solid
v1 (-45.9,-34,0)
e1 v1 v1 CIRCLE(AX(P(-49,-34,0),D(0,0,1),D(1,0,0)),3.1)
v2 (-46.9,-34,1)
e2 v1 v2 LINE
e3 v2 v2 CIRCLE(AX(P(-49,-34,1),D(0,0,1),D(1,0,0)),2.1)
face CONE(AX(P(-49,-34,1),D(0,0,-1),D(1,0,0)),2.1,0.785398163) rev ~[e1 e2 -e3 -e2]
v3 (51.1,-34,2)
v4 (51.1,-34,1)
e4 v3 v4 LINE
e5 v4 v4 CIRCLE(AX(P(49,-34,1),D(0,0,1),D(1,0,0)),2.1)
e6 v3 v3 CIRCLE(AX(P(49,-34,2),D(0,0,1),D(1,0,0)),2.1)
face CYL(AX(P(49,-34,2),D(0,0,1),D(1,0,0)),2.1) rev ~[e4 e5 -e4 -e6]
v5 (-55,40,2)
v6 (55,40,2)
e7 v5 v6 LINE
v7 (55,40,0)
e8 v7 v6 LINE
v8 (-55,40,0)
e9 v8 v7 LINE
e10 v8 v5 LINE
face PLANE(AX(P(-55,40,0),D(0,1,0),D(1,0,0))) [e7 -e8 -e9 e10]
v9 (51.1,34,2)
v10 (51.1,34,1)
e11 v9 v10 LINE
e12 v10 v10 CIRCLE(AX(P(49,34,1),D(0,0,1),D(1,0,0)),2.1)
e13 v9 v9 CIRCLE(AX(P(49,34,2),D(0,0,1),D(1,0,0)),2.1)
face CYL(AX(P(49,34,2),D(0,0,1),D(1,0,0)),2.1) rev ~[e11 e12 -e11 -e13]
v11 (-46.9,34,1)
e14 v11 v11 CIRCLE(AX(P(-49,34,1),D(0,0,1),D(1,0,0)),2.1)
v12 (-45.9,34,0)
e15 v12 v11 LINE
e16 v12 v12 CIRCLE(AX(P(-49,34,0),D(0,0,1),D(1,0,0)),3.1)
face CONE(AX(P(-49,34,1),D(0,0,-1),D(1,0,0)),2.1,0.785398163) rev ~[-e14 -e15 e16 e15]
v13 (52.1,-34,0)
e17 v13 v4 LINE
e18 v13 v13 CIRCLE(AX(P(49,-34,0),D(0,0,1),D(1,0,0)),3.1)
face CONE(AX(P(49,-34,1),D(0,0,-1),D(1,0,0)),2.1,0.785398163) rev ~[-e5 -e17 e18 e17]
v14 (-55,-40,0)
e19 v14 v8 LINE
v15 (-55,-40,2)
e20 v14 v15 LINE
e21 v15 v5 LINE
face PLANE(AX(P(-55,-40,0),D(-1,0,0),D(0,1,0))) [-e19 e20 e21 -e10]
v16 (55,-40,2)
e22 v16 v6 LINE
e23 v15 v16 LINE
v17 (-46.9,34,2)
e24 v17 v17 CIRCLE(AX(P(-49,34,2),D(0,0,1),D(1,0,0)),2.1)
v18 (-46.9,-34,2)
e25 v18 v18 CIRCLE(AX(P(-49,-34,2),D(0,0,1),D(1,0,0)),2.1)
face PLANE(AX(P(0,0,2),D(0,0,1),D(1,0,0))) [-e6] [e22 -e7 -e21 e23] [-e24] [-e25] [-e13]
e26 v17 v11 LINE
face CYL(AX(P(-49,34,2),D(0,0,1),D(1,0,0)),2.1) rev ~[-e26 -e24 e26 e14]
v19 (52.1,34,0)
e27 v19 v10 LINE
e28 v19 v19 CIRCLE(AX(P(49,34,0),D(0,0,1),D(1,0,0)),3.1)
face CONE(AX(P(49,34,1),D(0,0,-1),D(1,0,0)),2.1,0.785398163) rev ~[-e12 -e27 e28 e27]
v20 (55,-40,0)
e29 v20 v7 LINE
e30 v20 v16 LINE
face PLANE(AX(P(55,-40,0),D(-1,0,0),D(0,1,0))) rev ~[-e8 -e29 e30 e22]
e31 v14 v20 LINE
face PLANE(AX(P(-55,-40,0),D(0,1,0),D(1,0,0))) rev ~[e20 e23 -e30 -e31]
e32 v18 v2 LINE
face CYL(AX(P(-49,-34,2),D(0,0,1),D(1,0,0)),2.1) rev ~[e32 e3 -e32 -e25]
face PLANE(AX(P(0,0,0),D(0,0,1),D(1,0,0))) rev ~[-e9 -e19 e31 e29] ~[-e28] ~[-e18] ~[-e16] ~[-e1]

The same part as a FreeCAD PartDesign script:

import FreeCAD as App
import Part
import Sketcher
Q = App.Units.Quantity


def edges_at(feature, points):
    """Names of the edges that pass closest to the given points."""
    edges = feature.Shape.Edges
    near = lambda p: min(range(len(edges)), key=lambda i: edges[i].distToShape(Part.Vertex(*p))[0])
    return sorted({f"Edge{near(p) + 1}" for p in points})

doc = App.newDocument("Part")
body = doc.addObject("PartDesign::Body", "Body")

# Sketch on XY plane
sketch1 = body.newObject("Sketcher::SketchObject", "Sketch")
sketch1.AttachmentSupport = (doc.getObject("XY_Plane"), [""])
sketch1.MapMode = "FlatFace"
sketch1.addGeometry([
    Part.LineSegment(App.Vector(-55, 40, 0), App.Vector(-55, -40, 0)),
    Part.LineSegment(App.Vector(-55, -40, 0), App.Vector(55, -40, 0)),
    Part.LineSegment(App.Vector(55, -40, 0), App.Vector(55, 40, 0)),
    Part.LineSegment(App.Vector(55, 40, 0), App.Vector(-55, 40, 0)),
], False)
sketch1.addConstraint([
    Sketcher.Constraint("Coincident", 0, 2, 1, 1),
    Sketcher.Constraint("Coincident", 1, 2, 2, 1),
    Sketcher.Constraint("Coincident", 2, 2, 3, 1),
    Sketcher.Constraint("Coincident", 3, 2, 0, 1),
    Sketcher.Constraint("Vertical", 0),
    Sketcher.Constraint("Horizontal", 1),
    Sketcher.Constraint("Vertical", 2),
    Sketcher.Constraint("Horizontal", 3),
    Sketcher.Constraint("Symmetric", 0, 2, 2, 2, -1, 1),
    Sketcher.Constraint("DistanceX", 1, 1, 1, 2, Q("110 mm")),
    Sketcher.Constraint("DistanceY", 0, 2, 0, 1, Q("80 mm")),
])
pad1 = body.newObject("PartDesign::Pad", "Pad")
pad1.Profile = sketch1
pad1.Length = 2

# Sketch on XY plane
sketch2 = body.newObject("Sketcher::SketchObject", "Sketch001")
sketch2.AttachmentSupport = (doc.getObject("XY_Plane"), [""])
sketch2.MapMode = "FlatFace"
sketch2.AttachmentOffset = App.Placement(App.Vector(0, 0, 2), App.Rotation())
sketch2.addGeometry([
    Part.Circle(App.Vector(49, 34, 0), App.Vector(0, 0, 1), 2.1),
    Part.Circle(App.Vector(-49, 34, 0), App.Vector(0, 0, 1), 2.1),
    Part.Circle(App.Vector(-49, -34, 0), App.Vector(0, 0, 1), 2.1),
    Part.Circle(App.Vector(49, -34, 0), App.Vector(0, 0, 1), 2.1),
], False)
sketch2.addConstraint([
    Sketcher.Constraint("Equal", 0, 1),
    Sketcher.Constraint("Equal", 1, 2),
    Sketcher.Constraint("Equal", 2, 3),
    Sketcher.Constraint("Symmetric", 0, 3, 2, 3, -1, 1),
    Sketcher.Constraint("Symmetric", 1, 3, 3, 3, -1, 1),
    Sketcher.Constraint("Symmetric", 0, 3, 1, 3, -2),
    Sketcher.Constraint("Diameter", 0, Q("4.2 mm")),
    Sketcher.Constraint("DistanceX", -1, 1, 0, 3, Q("49 mm")),
    Sketcher.Constraint("DistanceY", -1, 1, 0, 3, Q("34 mm")),
])
pocket1 = body.newObject("PartDesign::Pocket", "Pocket")
pocket1.Profile = sketch2
pocket1.Length = 5
doc.recompute()

chamfer = body.newObject("PartDesign::Chamfer", "Chamfer")
chamfer.Base = (pocket1, edges_at(pocket1, [
    (-51.1, -34, 0),
    (-51.1, 34, 0),
    (46.9, 34, 0),
    (46.9, -34, 0),
]))
chamfer.Size = 1

doc.recompute()
